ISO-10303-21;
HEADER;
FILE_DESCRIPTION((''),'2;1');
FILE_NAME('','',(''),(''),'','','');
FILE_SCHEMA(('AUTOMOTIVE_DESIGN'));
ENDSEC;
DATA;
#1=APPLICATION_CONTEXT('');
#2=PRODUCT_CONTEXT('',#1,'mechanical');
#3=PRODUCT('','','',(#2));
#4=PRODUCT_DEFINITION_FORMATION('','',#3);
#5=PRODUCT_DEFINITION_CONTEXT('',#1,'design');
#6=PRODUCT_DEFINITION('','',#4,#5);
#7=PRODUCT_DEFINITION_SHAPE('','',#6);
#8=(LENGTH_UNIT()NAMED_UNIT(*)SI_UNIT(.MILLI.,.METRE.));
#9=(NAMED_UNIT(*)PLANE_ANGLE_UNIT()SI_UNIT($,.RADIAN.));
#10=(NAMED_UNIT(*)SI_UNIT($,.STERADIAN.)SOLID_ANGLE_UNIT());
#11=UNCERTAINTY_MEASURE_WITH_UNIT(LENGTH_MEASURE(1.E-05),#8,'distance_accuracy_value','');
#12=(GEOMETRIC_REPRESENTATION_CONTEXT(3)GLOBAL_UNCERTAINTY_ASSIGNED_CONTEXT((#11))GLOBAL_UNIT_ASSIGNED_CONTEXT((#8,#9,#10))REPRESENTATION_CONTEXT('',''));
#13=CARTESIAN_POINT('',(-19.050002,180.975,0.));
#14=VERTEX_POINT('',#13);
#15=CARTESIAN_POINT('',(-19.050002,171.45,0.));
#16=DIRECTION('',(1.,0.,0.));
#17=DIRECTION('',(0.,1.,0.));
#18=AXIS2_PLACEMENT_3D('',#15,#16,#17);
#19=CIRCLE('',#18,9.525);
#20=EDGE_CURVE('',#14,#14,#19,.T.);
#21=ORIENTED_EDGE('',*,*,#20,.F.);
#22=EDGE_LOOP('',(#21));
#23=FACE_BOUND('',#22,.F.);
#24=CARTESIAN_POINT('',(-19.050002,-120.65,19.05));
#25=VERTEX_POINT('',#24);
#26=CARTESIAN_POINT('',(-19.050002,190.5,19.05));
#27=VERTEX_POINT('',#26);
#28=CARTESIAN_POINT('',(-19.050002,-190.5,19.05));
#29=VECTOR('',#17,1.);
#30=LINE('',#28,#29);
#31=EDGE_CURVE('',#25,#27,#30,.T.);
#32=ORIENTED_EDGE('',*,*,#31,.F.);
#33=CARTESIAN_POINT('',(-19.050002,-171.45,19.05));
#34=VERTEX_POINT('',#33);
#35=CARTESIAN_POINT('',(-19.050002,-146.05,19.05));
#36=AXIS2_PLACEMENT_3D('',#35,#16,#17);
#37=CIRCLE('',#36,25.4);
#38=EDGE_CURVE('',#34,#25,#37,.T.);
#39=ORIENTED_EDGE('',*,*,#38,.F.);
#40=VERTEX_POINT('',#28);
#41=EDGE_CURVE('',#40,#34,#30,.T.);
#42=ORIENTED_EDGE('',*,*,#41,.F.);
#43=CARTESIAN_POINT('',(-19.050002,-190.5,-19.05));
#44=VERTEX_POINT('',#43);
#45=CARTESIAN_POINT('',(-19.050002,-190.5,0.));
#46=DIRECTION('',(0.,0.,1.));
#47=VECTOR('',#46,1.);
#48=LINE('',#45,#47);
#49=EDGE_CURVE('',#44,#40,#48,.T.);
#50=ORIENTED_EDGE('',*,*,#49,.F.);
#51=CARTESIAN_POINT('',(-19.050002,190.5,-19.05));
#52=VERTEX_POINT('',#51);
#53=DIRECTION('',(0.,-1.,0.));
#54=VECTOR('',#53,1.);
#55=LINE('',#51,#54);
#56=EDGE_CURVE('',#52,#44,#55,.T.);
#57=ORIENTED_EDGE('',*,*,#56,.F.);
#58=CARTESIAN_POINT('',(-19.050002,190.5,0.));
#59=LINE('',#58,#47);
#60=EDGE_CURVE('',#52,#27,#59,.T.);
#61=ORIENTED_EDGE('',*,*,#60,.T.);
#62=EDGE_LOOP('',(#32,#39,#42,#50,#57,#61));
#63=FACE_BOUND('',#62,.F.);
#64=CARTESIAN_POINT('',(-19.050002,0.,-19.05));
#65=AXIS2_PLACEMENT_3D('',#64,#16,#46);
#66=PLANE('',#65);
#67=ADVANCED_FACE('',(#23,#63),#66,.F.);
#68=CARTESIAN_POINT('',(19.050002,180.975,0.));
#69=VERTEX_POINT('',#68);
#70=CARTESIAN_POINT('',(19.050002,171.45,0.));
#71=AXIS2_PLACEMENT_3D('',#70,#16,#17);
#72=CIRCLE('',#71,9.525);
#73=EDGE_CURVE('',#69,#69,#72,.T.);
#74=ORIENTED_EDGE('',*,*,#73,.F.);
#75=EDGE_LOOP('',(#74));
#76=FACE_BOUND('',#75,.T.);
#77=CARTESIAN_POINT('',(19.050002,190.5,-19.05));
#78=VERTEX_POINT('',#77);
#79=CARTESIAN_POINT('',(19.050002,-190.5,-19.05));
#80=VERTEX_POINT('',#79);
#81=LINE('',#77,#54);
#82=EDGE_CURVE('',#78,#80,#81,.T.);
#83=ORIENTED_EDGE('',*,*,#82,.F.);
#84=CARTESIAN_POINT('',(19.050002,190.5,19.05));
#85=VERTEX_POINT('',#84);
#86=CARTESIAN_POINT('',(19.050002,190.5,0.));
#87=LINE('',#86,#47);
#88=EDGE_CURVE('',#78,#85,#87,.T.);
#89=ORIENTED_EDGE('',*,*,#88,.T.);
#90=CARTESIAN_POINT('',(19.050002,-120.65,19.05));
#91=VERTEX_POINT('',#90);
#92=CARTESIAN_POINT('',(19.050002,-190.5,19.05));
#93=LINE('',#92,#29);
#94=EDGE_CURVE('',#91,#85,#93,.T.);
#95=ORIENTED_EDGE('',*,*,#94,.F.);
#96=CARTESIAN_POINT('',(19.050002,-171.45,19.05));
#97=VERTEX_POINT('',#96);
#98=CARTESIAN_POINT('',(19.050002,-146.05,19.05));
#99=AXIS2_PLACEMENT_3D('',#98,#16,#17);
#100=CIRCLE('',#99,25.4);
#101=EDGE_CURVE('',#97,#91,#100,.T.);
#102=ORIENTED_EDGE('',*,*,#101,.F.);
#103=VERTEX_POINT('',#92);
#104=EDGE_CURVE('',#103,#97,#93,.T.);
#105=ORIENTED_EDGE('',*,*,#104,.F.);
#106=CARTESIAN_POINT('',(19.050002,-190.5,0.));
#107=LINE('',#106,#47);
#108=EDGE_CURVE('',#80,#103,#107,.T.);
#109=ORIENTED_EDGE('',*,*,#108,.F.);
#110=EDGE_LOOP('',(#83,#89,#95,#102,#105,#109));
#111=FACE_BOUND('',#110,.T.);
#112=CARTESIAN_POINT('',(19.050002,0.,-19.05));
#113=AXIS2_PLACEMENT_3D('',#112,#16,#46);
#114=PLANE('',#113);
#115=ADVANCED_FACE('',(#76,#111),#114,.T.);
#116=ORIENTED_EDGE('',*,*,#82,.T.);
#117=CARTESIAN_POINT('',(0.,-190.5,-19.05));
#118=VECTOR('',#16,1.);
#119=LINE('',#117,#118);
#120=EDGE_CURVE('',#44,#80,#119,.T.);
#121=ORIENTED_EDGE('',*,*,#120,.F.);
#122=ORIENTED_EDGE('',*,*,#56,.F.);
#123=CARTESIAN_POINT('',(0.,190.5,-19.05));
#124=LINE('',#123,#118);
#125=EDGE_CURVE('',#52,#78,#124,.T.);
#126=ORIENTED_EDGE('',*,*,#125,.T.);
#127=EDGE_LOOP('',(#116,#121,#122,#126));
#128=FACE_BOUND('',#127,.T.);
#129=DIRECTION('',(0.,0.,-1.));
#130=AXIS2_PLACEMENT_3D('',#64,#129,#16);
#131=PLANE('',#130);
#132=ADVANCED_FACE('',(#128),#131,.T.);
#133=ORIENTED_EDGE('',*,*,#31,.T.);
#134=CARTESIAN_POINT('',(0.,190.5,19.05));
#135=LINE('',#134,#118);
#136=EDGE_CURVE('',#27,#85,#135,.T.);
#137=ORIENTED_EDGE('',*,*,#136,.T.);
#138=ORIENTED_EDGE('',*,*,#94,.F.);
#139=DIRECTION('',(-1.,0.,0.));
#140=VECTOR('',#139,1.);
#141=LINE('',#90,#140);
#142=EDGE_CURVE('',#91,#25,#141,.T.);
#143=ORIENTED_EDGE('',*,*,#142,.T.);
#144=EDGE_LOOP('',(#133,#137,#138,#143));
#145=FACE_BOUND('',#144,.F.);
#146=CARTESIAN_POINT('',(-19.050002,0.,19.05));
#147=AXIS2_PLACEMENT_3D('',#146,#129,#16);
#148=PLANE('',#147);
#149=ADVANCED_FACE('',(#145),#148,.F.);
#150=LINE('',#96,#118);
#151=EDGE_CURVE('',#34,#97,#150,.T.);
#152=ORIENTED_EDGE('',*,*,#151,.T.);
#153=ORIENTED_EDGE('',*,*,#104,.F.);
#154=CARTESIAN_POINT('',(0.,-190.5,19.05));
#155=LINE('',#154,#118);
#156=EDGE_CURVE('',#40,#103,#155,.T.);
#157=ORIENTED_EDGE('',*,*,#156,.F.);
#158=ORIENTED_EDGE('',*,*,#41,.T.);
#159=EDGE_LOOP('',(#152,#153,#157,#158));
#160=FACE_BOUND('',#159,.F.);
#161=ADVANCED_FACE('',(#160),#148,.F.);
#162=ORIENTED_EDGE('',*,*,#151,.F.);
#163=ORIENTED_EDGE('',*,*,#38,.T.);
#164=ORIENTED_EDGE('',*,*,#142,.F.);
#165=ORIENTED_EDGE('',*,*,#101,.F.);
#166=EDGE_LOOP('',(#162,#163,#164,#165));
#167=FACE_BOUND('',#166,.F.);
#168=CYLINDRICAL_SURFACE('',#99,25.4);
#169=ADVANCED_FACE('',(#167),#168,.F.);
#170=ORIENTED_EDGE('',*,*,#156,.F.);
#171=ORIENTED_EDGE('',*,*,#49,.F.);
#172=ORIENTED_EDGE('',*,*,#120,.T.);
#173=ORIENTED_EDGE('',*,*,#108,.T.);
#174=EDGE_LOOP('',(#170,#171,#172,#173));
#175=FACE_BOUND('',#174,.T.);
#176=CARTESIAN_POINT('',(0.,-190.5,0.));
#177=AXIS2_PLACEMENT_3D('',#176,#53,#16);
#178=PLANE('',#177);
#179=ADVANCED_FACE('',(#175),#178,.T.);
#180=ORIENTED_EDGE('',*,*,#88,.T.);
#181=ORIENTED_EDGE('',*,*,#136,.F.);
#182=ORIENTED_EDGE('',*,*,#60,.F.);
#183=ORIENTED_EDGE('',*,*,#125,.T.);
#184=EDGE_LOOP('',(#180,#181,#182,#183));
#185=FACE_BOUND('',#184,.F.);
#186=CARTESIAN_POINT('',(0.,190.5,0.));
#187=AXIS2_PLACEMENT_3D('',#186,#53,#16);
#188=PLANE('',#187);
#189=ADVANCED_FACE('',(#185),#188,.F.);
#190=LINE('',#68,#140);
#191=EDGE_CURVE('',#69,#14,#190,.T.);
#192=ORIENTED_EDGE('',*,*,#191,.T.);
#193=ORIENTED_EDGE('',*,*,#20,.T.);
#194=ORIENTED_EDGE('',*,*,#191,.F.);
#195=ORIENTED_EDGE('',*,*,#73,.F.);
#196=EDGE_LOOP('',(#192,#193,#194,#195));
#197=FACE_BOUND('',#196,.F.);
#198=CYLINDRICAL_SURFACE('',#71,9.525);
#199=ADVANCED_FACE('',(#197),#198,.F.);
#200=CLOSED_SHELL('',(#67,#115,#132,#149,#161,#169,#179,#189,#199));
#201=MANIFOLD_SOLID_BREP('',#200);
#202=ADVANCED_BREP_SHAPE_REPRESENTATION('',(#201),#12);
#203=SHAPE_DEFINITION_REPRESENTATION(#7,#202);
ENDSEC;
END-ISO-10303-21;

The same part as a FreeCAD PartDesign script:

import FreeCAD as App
import Part
import Sketcher
Q = App.Units.Quantity

doc = App.newDocument("Part")
params = doc.addObject("Spreadsheet::Sheet", "Params")
for row, (alias, value) in enumerate([
    ("sketch1_width", "1.5000002 in"),
    ("sketch1_height", "1.5 in"),
    ("pad1_length", "15 in"),
    ("sketch2_diameter", "2 in"),
    ("sketch3_diameter", "0.75 in"),
], start=1):
    params.set(f"A{row}", alias)
    params.set(f"B{row}", "=" + value)
    params.setAlias(f"B{row}", alias)

body = doc.addObject("PartDesign::Body", "Body")

sketch1 = body.newObject("Sketcher::SketchObject", "Sketch")
sketch1.AttachmentSupport = (doc.getObject("XZ_Plane"), [""])
sketch1.MapMode = "FlatFace"
sketch1.addGeometry([
    Part.LineSegment(App.Vector(-19, 19, 0), App.Vector(-19, -19, 0)),
    Part.LineSegment(App.Vector(-19, -19, 0), App.Vector(19, -19, 0)),
    Part.LineSegment(App.Vector(19, -19, 0), App.Vector(19, 19, 0)),
    Part.LineSegment(App.Vector(19, 19, 0), App.Vector(-19, 19, 0)),
], False)
sketch1.addConstraint([
    Sketcher.Constraint("Coincident", 0, 2, 1, 1),
    Sketcher.Constraint("Coincident", 1, 2, 2, 1),
    Sketcher.Constraint("Coincident", 2, 2, 3, 1),
    Sketcher.Constraint("Coincident", 3, 2, 0, 1),
    Sketcher.Constraint("Vertical", 0),
    Sketcher.Constraint("Horizontal", 1),
    Sketcher.Constraint("Vertical", 2),
    Sketcher.Constraint("Horizontal", 3),
    Sketcher.Constraint("Symmetric", 0, 2, 2, 2, -1, 1),
    Sketcher.Constraint("DistanceX", 1, 1, 1, 2, Q("1.5000002 in")),
    Sketcher.Constraint("DistanceY", 0, 2, 0, 1, Q("1.5 in")),
])
sketch1.setExpression("Constraints[9]", "Params.sketch1_width")
sketch1.setExpression("Constraints[10]", "Params.sketch1_height")
pad1 = body.newObject("PartDesign::Pad", "Pad")
pad1.Profile = sketch1
pad1.setExpression("Length", "Params.pad1_length")
pad1.Midplane = True

sketch2 = body.newObject("Sketcher::SketchObject", "Sketch001")
sketch2.AttachmentSupport = (doc.getObject("YZ_Plane"), [""])
sketch2.MapMode = "FlatFace"
sketch2.AttachmentOffset = App.Placement(App.Vector(0, 0, 0.7500001 * 25.4), App.Rotation())
sketch2.addGeometry(Part.Circle(App.Vector(-146, 19, 0), App.Vector(0, 0, 1), 25), False)
sketch2.addConstraint([
    Sketcher.Constraint("Diameter", 0, Q("2 in")),
    Sketcher.Constraint("DistanceX", 0, 3, -1, 1, Q("5.75 in")),
    Sketcher.Constraint("DistanceY", -1, 1, 0, 3, Q("0.75 in")),
])
sketch2.setExpression("Constraints[0]", "Params.sketch2_diameter")
pocket1 = body.newObject("PartDesign::Pocket", "Pocket")
pocket1.Profile = sketch2
pocket1.Type = "ThroughAll"

sketch3 = body.newObject("Sketcher::SketchObject", "Sketch002")
sketch3.AttachmentSupport = (doc.getObject("YZ_Plane"), [""])
sketch3.MapMode = "FlatFace"
sketch3.AttachmentOffset = App.Placement(App.Vector(0, 0, 0.7500001 * 25.4), App.Rotation())
sketch3.addGeometry(Part.Circle(App.Vector(171, 0, 0), App.Vector(0, 0, 1), 10), False)
sketch3.addConstraint([
    Sketcher.Constraint("PointOnObject", 0, 3, -1),
    Sketcher.Constraint("Diameter", 0, Q("0.75 in")),
    Sketcher.Constraint("DistanceX", -1, 1, 0, 3, Q("6.75 in")),
])
sketch3.setExpression("Constraints[1]", "Params.sketch3_diameter")
pocket2 = body.newObject("PartDesign::Pocket", "Pocket001")
pocket2.Profile = sketch3
pocket2.Type = "ThroughAll"

doc.recompute()
